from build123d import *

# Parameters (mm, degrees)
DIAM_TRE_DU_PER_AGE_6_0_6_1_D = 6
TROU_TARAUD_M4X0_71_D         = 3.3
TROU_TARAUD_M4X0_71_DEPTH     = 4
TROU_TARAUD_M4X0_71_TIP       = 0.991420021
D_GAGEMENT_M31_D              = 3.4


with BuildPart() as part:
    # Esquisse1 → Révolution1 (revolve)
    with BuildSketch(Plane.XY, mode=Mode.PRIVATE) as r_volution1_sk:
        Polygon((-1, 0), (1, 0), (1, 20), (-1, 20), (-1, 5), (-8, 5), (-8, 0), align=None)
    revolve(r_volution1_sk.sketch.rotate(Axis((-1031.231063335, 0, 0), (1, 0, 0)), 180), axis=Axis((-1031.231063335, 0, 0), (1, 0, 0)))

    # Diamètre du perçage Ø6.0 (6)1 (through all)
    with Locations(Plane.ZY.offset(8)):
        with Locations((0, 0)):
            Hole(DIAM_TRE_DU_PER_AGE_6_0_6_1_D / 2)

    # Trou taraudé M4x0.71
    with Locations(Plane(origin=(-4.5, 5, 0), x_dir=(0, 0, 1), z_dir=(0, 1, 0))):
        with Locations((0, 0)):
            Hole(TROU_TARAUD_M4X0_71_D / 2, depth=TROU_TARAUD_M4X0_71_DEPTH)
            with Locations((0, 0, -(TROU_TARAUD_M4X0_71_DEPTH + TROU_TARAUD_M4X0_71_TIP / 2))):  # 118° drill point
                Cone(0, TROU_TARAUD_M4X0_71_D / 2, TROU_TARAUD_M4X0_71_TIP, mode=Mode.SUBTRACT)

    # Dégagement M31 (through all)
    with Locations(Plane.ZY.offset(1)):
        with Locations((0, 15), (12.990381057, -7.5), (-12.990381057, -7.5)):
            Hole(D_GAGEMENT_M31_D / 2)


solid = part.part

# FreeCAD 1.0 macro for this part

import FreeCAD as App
import Part
import Sketcher

V = App.Vector


def add_polygon(sketch, points):
    """Adds a closed chain of lines whose ends are joined by coincident constraints."""
    first, n = sketch.GeometryCount, len(points)
    for a, b in zip(points, points[1:] + points[:1]):
        sketch.addGeometry(Part.LineSegment(App.Vector(*a, 0), App.Vector(*b, 0)), False)
    for i in range(n):
        sketch.addConstraint(Sketcher.Constraint("Coincident", first + i, 2, first + (i + 1) % n, 1))

doc = App.newDocument("Part")
body = doc.addObject("PartDesign::Body", "Body")

sketch1 = body.newObject("Sketcher::SketchObject", "Sketch")
sketch1.AttachmentSupport = (doc.getObject("XY_Plane"), [""])
sketch1.MapMode = "FlatFace"
add_polygon(sketch1, [(1, 0), (1, 20), (-1, 20), (-1, 5), (-8, 5), (-8, 0)])
sketch1.addConstraint([
    Sketcher.Constraint("Vertical", 0),
    Sketcher.Constraint("Horizontal", 1),
    Sketcher.Constraint("Vertical", 2),
    Sketcher.Constraint("Horizontal", 3),
    Sketcher.Constraint("Vertical", 4),
    Sketcher.Constraint("Horizontal", 5),
    Sketcher.Constraint("PointOnObject", 4, 2, -1),
    Sketcher.Constraint("DistanceX", 1, 2, 1, 1, 2.0),
    Sketcher.Constraint("DistanceX", 3, 2, 3, 1, 7.0),
    Sketcher.Constraint("DistanceY", 0, 1, 0, 2, 20.0),
    Sketcher.Constraint("DistanceY", 2, 2, 2, 1, 15.0),
    Sketcher.Constraint("DistanceX", -1, 1, 0, 2, 1.0),
])
revolution = body.newObject("PartDesign::Revolution", "Revolution")
revolution.Profile = sketch1
revolution.ReferenceAxis = (sketch1, ["H_Axis"])
revolution.Angle = 360

sketch2 = body.newObject("Sketcher::SketchObject", "Sketch001")
sketch2.AttachmentSupport = (doc.getObject("YZ_Plane"), [""])
sketch2.MapMode = "FlatFace"
sketch2.AttachmentOffset = App.Placement(V(0, 0, -8), App.Rotation())
sketch2.addGeometry(Part.Circle(V(0, 0, 0), V(0, 0, 1), 3), False)
sketch2.addConstraint([
    Sketcher.Constraint("Coincident", 0, 3, -1, 1),
    Sketcher.Constraint("Diameter", 0, 6.0),
])
doc.recompute()
hole = body.newObject("PartDesign::Hole", "Hole")
hole.Profile = sketch2
hole.ThreadType = "None"
hole.Diameter = 6
hole.DepthType = "ThroughAll"
hole.Reversed = True

sketch3 = body.newObject("Sketcher::SketchObject", "Sketch002")
sketch3.AttachmentSupport = (doc.getObject("XZ_Plane"), [""])
sketch3.MapMode = "FlatFace"
sketch3.AttachmentOffset = App.Placement(V(0, 0, -5), App.Rotation())
sketch3.addGeometry(Part.Circle(V(-4.5, 0, 0), V(0, 0, 1), 1.6), False)
sketch3.addConstraint([
    Sketcher.Constraint("PointOnObject", 0, 3, -1),
    Sketcher.Constraint("Diameter", 0, 3.3),
    Sketcher.Constraint("DistanceX", 0, 3, -1, 1, 4.5),
])
doc.recompute()
hole2 = body.newObject("PartDesign::Hole", "Hole001")
hole2.Profile = sketch3
hole2.ThreadType = "None"
hole2.Diameter = 3.3
hole2.DepthType = "Dimension"
hole2.Depth = 4
hole2.DrillPoint = "Angled"
hole2.DrillPointAngle = 118
hole2.Reversed = True

sketch4 = body.newObject("Sketcher::SketchObject", "Sketch003")
sketch4.AttachmentSupport = (doc.getObject("YZ_Plane"), [""])
sketch4.MapMode = "FlatFace"
sketch4.AttachmentOffset = App.Placement(V(0, 0, -1), App.Rotation())
sketch4.addGeometry([
    Part.Circle(V(15, 0, 0), V(0, 0, 1), 1.7),
    Part.Circle(V(-7.5, 13, 0), V(0, 0, 1), 1.7),
    Part.Circle(V(-7.5, -13, 0), V(0, 0, 1), 1.7),
], False)
sketch4.addConstraint([
    Sketcher.Constraint("Equal", 0, 1),
    Sketcher.Constraint("Equal", 1, 2),
    Sketcher.Constraint("Symmetric", 1, 3, 2, 3, -1),
    Sketcher.Constraint("PointOnObject", 0, 3, -1),
    Sketcher.Constraint("Diameter", 0, 3.4),
    Sketcher.Constraint("DistanceX", -1, 1, 0, 3, 15.0),
    Sketcher.Constraint("DistanceX", 1, 3, -1, 1, 7.5),
    Sketcher.Constraint("DistanceY", -1, 1, 1, 3, 12.990381),
])
doc.recompute()
hole3 = body.newObject("PartDesign::Hole", "Hole002")
hole3.Profile = sketch4
hole3.ThreadType = "None"
hole3.Diameter = 3.4
hole3.DepthType = "ThroughAll"
hole3.Reversed = True

doc.recompute()
